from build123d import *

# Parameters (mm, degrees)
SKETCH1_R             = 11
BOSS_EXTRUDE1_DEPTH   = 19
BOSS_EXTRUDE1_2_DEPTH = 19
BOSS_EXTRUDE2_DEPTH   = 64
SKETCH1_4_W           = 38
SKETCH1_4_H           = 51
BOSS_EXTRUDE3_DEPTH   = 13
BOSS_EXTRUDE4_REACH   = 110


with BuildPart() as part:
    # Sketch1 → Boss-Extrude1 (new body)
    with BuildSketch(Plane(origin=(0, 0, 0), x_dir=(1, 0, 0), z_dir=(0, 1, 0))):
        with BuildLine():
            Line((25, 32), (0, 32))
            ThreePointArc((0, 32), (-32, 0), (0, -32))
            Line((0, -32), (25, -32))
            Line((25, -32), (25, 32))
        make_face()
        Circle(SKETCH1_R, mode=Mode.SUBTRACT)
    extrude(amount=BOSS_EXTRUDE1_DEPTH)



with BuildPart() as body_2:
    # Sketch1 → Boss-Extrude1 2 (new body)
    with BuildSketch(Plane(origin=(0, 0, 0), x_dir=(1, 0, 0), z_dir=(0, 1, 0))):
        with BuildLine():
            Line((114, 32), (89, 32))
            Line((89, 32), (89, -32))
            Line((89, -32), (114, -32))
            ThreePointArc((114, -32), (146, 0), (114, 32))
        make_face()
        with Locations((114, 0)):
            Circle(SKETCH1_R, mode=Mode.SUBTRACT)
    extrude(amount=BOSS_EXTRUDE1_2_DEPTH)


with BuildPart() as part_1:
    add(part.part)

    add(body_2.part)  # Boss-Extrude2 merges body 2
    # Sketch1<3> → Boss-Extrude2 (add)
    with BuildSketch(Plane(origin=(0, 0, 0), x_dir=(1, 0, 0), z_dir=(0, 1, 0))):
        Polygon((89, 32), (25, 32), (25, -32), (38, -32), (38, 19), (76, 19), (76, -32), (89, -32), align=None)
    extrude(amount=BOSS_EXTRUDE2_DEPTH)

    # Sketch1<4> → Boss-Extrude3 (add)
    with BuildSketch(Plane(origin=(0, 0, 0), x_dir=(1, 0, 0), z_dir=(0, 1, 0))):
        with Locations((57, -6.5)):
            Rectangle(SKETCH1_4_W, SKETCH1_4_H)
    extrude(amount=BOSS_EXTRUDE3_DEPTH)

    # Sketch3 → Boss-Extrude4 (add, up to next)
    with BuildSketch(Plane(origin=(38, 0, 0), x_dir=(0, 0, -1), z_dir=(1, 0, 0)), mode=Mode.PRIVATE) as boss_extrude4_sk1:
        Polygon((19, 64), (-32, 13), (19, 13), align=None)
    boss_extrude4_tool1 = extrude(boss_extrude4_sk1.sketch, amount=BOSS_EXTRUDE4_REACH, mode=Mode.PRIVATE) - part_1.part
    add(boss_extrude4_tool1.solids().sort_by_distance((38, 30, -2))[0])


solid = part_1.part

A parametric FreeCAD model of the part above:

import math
import FreeCAD as App
import Part
import Sketcher

V = App.Vector
Q = App.Units.Quantity


def add_polygon(sketch, points):
    """Adds a closed chain of lines whose ends are joined by coincident constraints."""
    first, n = sketch.GeometryCount, len(points)
    for a, b in zip(points, points[1:] + points[:1]):
        sketch.addGeometry(Part.LineSegment(App.Vector(*a, 0), App.Vector(*b, 0)), False)
    for i in range(n):
        sketch.addConstraint(Sketcher.Constraint("Coincident", first + i, 2, first + (i + 1) % n, 1))

doc = App.newDocument("Part")
body = doc.addObject("PartDesign::Body", "Body")

# Sketch on XZ plane
sketch1 = body.newObject("Sketcher::SketchObject", "Sketch")
sketch1.AttachmentSupport = (doc.getObject("XZ_Plane"), [""])
sketch1.MapMode = "FlatFace"
sketch1.addGeometry(Part.LineSegment(V(25, -32, 0), V(0, -32, 0)), False)
sketch1.addGeometry(Part.ArcOfCircle(Part.Circle(V(0, 0, 0), V(0, 0, 1), 32), math.radians(90), math.radians(270)), False)
sketch1.addGeometry(Part.LineSegment(V(0, 32, 0), V(25, 32, 0)), False)
sketch1.addGeometry(Part.LineSegment(V(25, 32, 0), V(25, -32, 0)), False)
sketch1.addGeometry(Part.Circle(V(0, 0, 0), V(0, 0, 1), 11), False)
sketch1.addConstraint(Sketcher.Constraint("Tangent", 0, 2, 1, 2))
sketch1.addConstraint(Sketcher.Constraint("Tangent", 1, 1, 2, 1))
sketch1.addConstraint(Sketcher.Constraint("Coincident", 2, 2, 3, 1))
sketch1.addConstraint(Sketcher.Constraint("Coincident", 3, 2, 0, 1))
sketch1.addConstraint(Sketcher.Constraint("Horizontal", 0))
sketch1.addConstraint(Sketcher.Constraint("Horizontal", 2))
sketch1.addConstraint(Sketcher.Constraint("Vertical", 3))
sketch1.addConstraint(Sketcher.Constraint("Coincident", 1, 3, -1, 1))
sketch1.addConstraint(Sketcher.Constraint("Coincident", 4, 3, -1, 1))
sketch1.addConstraint(Sketcher.Constraint("Diameter", 4, Q("22 mm")))
sketch1.addConstraint(Sketcher.Constraint("Radius", 1, Q("32 mm")))
sketch1.addConstraint(Sketcher.Constraint("DistanceX", 0, 2, 0, 1, Q("25 mm")))
pad1 = body.newObject("PartDesign::Pad", "Pad")
pad1.Profile = sketch1
pad1.Length = 19
pad1.Reversed = True
body2 = doc.addObject("PartDesign::Body", "Body001")

# Sketch on XZ plane
sketch2 = body2.newObject("Sketcher::SketchObject", "Sketch001")
sketch2.AttachmentSupport = (doc.getObject("XZ_Plane001"), [""])
sketch2.MapMode = "FlatFace"
sketch2.addGeometry(Part.LineSegment(V(114, -32, 0), V(89, -32, 0)), False)
sketch2.addGeometry(Part.LineSegment(V(89, -32, 0), V(89, 32, 0)), False)
sketch2.addGeometry(Part.LineSegment(V(89, 32, 0), V(114, 32, 0)), False)
sketch2.addGeometry(Part.ArcOfCircle(Part.Circle(V(114, 0, 0), V(0, 0, 1), 32), math.radians(-90), math.radians(90)), False)
sketch2.addGeometry(Part.Circle(V(114, 0, 0), V(0, 0, 1), 11), False)
sketch2.addConstraint(Sketcher.Constraint("Coincident", 0, 2, 1, 1))
sketch2.addConstraint(Sketcher.Constraint("Coincident", 1, 2, 2, 1))
sketch2.addConstraint(Sketcher.Constraint("Tangent", 2, 2, 3, 2))
sketch2.addConstraint(Sketcher.Constraint("Tangent", 3, 1, 0, 1))
sketch2.addConstraint(Sketcher.Constraint("Horizontal", 0))
sketch2.addConstraint(Sketcher.Constraint("Vertical", 1))
sketch2.addConstraint(Sketcher.Constraint("Horizontal", 2))
sketch2.addConstraint(Sketcher.Constraint("Coincident", 4, 3, 3, 3))
sketch2.addConstraint(Sketcher.Constraint("PointOnObject", 3, 3, -1))
sketch2.addConstraint(Sketcher.Constraint("Diameter", 4, Q("22 mm")))
sketch2.addConstraint(Sketcher.Constraint("Radius", 3, Q("32 mm")))
sketch2.addConstraint(Sketcher.Constraint("DistanceX", 0, 2, 0, 1, Q("25 mm")))
sketch2.addConstraint(Sketcher.Constraint("DistanceX", -1, 1, 3, 3, Q("114 mm")))
pad2 = body2.newObject("PartDesign::Pad", "Pad001")
pad2.Profile = sketch2
pad2.Length = 19
pad2.Reversed = True
body.AllowCompound = True
doc.recompute()

boolean = body.newObject("PartDesign::Boolean", "Boolean")
boolean.Type = "Fuse"
boolean.addObjects([body2])

# Sketch on XZ plane
sketch3 = body.newObject("Sketcher::SketchObject", "Sketch002")
sketch3.AttachmentSupport = (doc.getObject("XZ_Plane"), [""])
sketch3.MapMode = "FlatFace"
add_polygon(sketch3, [(89, -32), (25, -32), (25, 32), (38, 32), (38, -19), (76, -19), (76, 32), (89, 32)])  # lines 0-7
sketch3.addConstraint(Sketcher.Constraint("Horizontal", 0))
sketch3.addConstraint(Sketcher.Constraint("Vertical", 1))
sketch3.addConstraint(Sketcher.Constraint("Horizontal", 2))
sketch3.addConstraint(Sketcher.Constraint("Vertical", 3))
sketch3.addConstraint(Sketcher.Constraint("Horizontal", 4))
sketch3.addConstraint(Sketcher.Constraint("Vertical", 5))
sketch3.addConstraint(Sketcher.Constraint("Horizontal", 6))
sketch3.addConstraint(Sketcher.Constraint("Vertical", 7))
sketch3.addConstraint(Sketcher.Constraint("Horizontal", 2, 2, 5, 2))
sketch3.addConstraint(Sketcher.Constraint("Equal", 2, 6))
sketch3.addConstraint(Sketcher.Constraint("Equal", 0, 1))
sketch3.addConstraint(Sketcher.Constraint("DistanceX", 0, 2, 0, 1, Q("64 mm")))
sketch3.addConstraint(Sketcher.Constraint("DistanceX", 2, 1, 2, 2, Q("13 mm")))
sketch3.addConstraint(Sketcher.Constraint("DistanceY", 3, 2, 3, 1, Q("51 mm")))
sketch3.addConstraint(Sketcher.Constraint("DistanceX", -1, 1, 0, 2, Q("25 mm")))
sketch3.addConstraint(Sketcher.Constraint("DistanceY", 0, 2, -1, 1, Q("32 mm")))
pad3 = body.newObject("PartDesign::Pad", "Pad002")
pad3.Profile = sketch3
pad3.Length = 64
pad3.Reversed = True

# Sketch on XZ plane
sketch4 = body.newObject("Sketcher::SketchObject", "Sketch003")
sketch4.AttachmentSupport = (doc.getObject("XZ_Plane"), [""])
sketch4.MapMode = "FlatFace"
add_polygon(sketch4, [(38, -19), (38, 32), (76, 32), (76, -19)])  # lines 0-3
sketch4.addConstraint(Sketcher.Constraint("Vertical", 0))
sketch4.addConstraint(Sketcher.Constraint("Horizontal", 1))
sketch4.addConstraint(Sketcher.Constraint("Vertical", 2))
sketch4.addConstraint(Sketcher.Constraint("Horizontal", 3))
sketch4.addConstraint(Sketcher.Constraint("DistanceX", 1, 1, 1, 2, Q("38 mm")))
sketch4.addConstraint(Sketcher.Constraint("DistanceY", 0, 1, 0, 2, Q("51 mm")))
sketch4.addConstraint(Sketcher.Constraint("DistanceX", -1, 1, 0, 2, Q("38 mm")))
sketch4.addConstraint(Sketcher.Constraint("DistanceY", -1, 1, 0, 2, Q("32 mm")))
pad4 = body.newObject("PartDesign::Pad", "Pad003")
pad4.Profile = sketch4
pad4.Length = 13
pad4.Reversed = True

# Sketch on YZ plane
sketch5 = body.newObject("Sketcher::SketchObject", "Sketch004")
sketch5.AttachmentSupport = (doc.getObject("YZ_Plane"), [""])
sketch5.MapMode = "FlatFace"
sketch5.AttachmentOffset = App.Placement(V(0, 0, 38), App.Rotation())
add_polygon(sketch5, [(64, -19), (13, 32), (13, -19)])  # lines 0-2
sketch5.addConstraint(Sketcher.Constraint("Vertical", 1))
sketch5.addConstraint(Sketcher.Constraint("Horizontal", 2))
sketch5.addConstraint(Sketcher.Constraint("Equal", 2, 1))
sketch5.addConstraint(Sketcher.Constraint("DistanceX", 2, 1, 2, 2, Q("51 mm")))
sketch5.addConstraint(Sketcher.Constraint("DistanceX", -1, 1, 0, 2, Q("13 mm")))
sketch5.addConstraint(Sketcher.Constraint("DistanceY", -1, 1, 0, 2, Q("32 mm")))
pad5 = body.newObject("PartDesign::Pad", "Pad004")
pad5.Profile = sketch5
pad5.Type = "UpToFirst"

doc.recompute()
